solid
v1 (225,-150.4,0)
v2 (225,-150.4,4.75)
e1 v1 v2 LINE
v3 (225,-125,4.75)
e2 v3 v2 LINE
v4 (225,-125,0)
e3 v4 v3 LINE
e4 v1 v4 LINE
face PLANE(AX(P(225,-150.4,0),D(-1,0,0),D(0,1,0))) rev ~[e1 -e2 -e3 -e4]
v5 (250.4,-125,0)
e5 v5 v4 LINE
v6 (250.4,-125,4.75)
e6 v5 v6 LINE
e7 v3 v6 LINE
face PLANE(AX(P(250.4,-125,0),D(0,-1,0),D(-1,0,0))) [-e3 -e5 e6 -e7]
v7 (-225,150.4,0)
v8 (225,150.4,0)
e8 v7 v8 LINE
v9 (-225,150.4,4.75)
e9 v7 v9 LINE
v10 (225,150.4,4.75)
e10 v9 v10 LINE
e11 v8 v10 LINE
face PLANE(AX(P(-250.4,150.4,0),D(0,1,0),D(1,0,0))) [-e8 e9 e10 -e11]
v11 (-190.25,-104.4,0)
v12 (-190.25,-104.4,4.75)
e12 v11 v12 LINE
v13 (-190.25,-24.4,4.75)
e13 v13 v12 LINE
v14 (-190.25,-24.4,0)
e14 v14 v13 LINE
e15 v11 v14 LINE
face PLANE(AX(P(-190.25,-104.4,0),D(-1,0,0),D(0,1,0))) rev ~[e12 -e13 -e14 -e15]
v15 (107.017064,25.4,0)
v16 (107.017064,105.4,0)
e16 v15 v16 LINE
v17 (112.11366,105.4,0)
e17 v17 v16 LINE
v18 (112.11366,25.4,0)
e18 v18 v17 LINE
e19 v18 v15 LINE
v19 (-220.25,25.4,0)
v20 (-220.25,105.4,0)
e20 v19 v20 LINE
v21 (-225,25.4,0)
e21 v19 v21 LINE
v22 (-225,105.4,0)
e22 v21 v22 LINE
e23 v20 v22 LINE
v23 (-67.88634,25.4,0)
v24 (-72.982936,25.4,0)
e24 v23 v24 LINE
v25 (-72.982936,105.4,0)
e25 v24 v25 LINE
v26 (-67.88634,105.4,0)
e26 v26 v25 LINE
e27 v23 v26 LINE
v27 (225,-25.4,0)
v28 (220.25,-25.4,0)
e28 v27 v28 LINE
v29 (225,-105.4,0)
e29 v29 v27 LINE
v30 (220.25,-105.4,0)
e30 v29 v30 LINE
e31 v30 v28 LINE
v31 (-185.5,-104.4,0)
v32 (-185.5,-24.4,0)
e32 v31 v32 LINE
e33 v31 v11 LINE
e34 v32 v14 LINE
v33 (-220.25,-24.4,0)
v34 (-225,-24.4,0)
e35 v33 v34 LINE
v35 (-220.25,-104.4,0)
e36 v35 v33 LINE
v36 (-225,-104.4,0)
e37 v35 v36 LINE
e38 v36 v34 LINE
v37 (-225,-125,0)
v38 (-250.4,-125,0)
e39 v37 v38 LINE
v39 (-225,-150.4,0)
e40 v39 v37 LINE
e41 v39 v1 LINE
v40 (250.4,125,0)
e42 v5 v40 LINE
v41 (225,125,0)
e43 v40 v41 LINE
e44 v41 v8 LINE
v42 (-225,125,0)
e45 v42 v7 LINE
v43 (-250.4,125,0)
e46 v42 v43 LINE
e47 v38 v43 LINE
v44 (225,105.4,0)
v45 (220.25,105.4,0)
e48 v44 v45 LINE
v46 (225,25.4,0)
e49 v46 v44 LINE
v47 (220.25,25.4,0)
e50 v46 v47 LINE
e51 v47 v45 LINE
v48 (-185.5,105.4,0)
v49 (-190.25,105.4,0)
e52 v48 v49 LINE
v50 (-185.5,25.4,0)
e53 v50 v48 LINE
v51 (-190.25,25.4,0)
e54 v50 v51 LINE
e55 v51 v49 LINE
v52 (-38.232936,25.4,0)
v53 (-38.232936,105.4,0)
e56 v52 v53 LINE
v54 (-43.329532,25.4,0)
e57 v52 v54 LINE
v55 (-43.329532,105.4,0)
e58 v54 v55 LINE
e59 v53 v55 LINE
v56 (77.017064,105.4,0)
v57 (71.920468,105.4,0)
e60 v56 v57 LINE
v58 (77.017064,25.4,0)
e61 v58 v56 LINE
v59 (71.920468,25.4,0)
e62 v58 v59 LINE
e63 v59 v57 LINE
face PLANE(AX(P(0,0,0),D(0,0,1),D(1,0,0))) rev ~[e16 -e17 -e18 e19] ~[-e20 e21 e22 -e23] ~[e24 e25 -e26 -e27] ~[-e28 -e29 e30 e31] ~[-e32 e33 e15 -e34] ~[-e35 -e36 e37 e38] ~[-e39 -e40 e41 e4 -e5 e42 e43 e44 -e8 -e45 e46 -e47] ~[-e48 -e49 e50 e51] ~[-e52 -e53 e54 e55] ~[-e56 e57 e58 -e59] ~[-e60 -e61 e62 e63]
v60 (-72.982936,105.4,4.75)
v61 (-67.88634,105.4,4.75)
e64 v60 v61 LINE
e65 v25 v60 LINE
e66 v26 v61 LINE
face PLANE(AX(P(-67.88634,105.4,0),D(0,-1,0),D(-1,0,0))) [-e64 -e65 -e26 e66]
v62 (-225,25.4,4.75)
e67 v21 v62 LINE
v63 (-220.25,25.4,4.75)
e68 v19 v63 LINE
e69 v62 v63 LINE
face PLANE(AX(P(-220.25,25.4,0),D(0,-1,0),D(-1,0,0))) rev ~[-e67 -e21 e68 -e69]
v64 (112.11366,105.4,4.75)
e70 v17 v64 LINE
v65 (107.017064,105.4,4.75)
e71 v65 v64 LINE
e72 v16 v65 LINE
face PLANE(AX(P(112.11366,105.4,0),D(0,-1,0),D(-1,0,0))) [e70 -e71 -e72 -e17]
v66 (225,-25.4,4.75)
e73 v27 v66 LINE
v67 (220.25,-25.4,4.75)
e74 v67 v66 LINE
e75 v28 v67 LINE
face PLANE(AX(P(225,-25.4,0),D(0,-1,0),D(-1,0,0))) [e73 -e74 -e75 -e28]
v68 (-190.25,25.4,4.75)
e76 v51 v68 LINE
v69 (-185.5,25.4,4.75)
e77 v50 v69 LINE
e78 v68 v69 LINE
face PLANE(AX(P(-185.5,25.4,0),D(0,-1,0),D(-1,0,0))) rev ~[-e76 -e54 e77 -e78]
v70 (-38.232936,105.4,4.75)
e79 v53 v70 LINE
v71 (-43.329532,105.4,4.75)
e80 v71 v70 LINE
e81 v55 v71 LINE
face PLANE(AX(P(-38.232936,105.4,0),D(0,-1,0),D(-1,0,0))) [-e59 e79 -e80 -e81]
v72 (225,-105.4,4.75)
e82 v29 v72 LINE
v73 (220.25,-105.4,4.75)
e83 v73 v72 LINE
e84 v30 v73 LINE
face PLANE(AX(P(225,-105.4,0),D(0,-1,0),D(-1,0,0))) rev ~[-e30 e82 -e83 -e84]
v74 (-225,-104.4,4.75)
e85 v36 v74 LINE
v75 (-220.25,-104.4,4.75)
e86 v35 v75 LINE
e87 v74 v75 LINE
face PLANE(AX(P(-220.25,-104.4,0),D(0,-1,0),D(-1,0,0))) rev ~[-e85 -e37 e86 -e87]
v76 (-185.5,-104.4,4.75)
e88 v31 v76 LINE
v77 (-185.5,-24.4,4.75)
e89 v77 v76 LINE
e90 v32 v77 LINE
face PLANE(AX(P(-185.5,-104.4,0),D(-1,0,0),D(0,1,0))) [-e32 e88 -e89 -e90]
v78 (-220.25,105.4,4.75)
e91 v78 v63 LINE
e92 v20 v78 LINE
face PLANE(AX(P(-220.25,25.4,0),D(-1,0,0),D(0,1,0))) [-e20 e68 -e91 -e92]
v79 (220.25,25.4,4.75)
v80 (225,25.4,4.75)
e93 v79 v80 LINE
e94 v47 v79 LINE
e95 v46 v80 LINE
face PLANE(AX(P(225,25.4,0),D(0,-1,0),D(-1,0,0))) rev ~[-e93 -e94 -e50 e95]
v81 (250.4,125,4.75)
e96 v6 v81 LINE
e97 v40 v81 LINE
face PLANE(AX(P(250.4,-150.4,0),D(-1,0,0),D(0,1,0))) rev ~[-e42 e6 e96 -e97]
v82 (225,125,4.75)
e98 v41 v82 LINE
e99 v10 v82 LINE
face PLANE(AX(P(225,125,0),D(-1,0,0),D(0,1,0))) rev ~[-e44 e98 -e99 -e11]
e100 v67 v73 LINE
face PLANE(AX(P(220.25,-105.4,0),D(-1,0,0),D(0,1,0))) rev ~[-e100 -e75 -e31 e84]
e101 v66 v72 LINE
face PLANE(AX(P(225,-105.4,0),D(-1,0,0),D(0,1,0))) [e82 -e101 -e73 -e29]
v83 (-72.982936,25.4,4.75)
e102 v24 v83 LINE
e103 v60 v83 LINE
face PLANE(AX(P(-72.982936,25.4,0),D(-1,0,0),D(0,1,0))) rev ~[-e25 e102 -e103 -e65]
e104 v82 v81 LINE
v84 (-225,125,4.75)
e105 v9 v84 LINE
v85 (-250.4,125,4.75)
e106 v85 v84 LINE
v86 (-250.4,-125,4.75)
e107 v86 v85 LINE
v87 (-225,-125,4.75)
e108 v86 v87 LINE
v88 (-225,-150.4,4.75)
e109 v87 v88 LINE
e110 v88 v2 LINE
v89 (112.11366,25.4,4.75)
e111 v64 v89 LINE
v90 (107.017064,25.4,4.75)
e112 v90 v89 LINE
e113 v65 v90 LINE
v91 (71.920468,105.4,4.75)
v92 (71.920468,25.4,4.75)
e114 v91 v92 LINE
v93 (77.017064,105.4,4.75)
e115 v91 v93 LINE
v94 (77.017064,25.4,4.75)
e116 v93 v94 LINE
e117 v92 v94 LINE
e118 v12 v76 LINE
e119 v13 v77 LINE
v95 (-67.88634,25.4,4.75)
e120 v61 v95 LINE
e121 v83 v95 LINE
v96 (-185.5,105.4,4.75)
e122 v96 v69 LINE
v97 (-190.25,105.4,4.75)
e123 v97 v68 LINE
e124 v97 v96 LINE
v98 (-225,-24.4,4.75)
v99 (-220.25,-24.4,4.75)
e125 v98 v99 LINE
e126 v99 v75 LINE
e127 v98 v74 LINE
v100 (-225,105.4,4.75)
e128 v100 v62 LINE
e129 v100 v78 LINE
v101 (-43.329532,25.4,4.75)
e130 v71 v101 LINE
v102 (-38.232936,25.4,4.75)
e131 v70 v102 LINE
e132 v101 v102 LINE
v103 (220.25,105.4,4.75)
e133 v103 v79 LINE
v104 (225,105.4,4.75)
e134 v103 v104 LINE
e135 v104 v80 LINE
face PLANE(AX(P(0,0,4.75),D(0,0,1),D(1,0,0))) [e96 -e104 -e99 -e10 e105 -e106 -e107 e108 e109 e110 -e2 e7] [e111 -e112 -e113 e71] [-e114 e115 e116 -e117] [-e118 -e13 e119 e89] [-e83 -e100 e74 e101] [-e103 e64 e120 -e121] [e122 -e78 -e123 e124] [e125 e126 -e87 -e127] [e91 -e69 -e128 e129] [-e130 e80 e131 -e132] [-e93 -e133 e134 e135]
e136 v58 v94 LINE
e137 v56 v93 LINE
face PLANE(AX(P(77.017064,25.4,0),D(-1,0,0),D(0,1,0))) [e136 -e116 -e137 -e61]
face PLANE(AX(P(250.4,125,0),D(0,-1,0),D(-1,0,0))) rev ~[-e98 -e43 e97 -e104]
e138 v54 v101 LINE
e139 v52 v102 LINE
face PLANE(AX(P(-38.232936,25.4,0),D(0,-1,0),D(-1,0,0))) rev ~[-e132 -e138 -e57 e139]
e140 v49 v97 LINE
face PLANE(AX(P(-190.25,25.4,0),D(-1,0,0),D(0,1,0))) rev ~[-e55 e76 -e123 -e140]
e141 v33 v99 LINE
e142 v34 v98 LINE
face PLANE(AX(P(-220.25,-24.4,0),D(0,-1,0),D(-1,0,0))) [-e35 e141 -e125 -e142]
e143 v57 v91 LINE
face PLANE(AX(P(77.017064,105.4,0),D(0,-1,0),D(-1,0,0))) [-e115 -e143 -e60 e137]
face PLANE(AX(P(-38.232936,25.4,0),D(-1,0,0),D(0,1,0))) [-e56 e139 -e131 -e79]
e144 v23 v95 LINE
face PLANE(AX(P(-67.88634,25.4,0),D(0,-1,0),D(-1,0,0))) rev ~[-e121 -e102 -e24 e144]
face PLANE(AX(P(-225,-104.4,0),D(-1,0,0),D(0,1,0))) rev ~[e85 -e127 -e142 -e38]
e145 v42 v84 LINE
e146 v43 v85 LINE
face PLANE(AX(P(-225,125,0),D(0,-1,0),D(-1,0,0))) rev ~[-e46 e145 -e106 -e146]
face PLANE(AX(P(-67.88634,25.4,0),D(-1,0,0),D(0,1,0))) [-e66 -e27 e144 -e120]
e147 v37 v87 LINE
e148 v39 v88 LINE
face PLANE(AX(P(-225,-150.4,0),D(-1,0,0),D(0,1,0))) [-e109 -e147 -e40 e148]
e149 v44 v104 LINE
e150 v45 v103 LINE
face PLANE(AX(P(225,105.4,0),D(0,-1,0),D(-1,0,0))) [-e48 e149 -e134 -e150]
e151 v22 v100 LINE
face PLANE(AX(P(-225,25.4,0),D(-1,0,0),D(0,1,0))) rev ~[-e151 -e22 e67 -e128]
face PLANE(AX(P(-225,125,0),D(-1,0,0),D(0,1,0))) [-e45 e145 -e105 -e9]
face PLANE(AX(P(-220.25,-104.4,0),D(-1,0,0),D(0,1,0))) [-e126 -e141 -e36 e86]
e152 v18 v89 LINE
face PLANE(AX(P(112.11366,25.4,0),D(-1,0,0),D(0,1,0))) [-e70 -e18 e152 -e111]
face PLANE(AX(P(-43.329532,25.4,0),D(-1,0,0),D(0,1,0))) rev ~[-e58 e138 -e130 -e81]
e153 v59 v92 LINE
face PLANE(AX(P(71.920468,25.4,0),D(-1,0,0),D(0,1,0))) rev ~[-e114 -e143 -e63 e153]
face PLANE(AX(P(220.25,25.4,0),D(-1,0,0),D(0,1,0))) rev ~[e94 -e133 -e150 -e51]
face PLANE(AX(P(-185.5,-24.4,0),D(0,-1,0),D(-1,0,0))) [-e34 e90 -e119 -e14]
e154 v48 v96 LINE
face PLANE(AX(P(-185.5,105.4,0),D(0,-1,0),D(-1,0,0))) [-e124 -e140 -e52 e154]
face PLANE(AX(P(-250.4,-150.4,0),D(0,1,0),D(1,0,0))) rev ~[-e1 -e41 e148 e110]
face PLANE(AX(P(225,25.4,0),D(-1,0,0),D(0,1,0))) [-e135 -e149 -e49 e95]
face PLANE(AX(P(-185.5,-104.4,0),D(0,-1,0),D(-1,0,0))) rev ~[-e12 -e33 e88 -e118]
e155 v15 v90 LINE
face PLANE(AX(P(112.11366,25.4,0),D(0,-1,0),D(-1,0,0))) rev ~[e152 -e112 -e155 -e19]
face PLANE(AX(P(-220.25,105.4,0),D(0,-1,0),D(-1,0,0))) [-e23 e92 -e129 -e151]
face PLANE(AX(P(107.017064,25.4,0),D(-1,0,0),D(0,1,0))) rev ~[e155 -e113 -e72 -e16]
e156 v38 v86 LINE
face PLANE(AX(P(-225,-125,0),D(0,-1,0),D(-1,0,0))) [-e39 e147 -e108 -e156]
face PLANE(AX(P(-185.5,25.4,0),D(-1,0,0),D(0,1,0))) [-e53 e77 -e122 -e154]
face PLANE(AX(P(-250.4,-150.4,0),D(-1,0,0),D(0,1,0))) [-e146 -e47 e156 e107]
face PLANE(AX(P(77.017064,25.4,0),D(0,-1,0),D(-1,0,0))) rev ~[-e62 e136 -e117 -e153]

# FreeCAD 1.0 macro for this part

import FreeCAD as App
import Part
import Sketcher


def add_polygon(sketch, points):
    """Adds a closed chain of lines whose ends are joined by coincident constraints."""
    first, n = sketch.GeometryCount, len(points)
    for a, b in zip(points, points[1:] + points[:1]):
        sketch.addGeometry(Part.LineSegment(App.Vector(*a, 0), App.Vector(*b, 0)), False)
    for i in range(n):
        sketch.addConstraint(Sketcher.Constraint("Coincident", first + i, 2, first + (i + 1) % n, 1))

doc = App.newDocument("Part")
body = doc.addObject("PartDesign::Body", "Body")

# Sketch on XY plane
sketch1 = doc.addObject("Sketcher::SketchObject", "Sketch")
body.addObject(sketch1)
sketch1.AttachmentSupport = (doc.XY_Plane, [""])
sketch1.MapMode = "FlatFace"
add_polygon(sketch1, [(-250.4, 150.4), (-250.4, -150.4), (250.4, -150.4), (250.4, 150.4)])  # lines 0-3
sketch1.addConstraint([
    Sketcher.Constraint("Vertical", 0),
    Sketcher.Constraint("Horizontal", 1),
    Sketcher.Constraint("Vertical", 2),
    Sketcher.Constraint("Horizontal", 3),
    Sketcher.Constraint("Symmetric", 0, 2, 2, 2, -1, 1),
    Sketcher.Constraint("DistanceX", 1, 1, 1, 2, 500.8),
    Sketcher.Constraint("DistanceY", 0, 2, 0, 1, 300.8),
])
pad1 = doc.addObject("PartDesign::Pad", "Pad")
body.addObject(pad1)
pad1.Profile = sketch1
pad1.Length = 4.75

# Sketch on XY plane
sketch2 = doc.addObject("Sketcher::SketchObject", "Sketch001")
body.addObject(sketch2)
sketch2.AttachmentSupport = (doc.XY_Plane, [""])
sketch2.MapMode = "FlatFace"
add_polygon(sketch2, [(250.4, 150.4), (250.4, 125), (225, 125), (225, 150.4)])  # lines 0-3
add_polygon(sketch2, [(250.4, -125), (250.4, -150.4), (225, -150.4), (225, -125)])  # lines 4-7
add_polygon(sketch2, [(-225, 150.4), (-225, 125), (-250.4, 125), (-250.4, 150.4)])  # lines 8-11
add_polygon(sketch2, [(-225, -125), (-225, -150.4), (-250.4, -150.4), (-250.4, -125)])  # lines 12-15
add_polygon(sketch2, [(225, 105.4), (225, 25.4), (220.25, 25.4), (220.25, 105.4)])  # lines 16-19
add_polygon(sketch2, [(225, -25.4), (225, -105.4), (220.25, -105.4), (220.25, -25.4)])  # lines 20-23
add_polygon(sketch2, [(-220.25, 105.4), (-220.25, 25.4), (-225, 25.4), (-225, 105.4)])  # lines 24-27
add_polygon(sketch2, [(-220.25, -24.4), (-220.25, -104.4), (-225, -104.4), (-225, -24.4)])  # lines 28-31
add_polygon(sketch2, [(-185.5, 105.4), (-185.5, 25.4), (-190.25, 25.4), (-190.25, 105.4)])  # lines 32-35
add_polygon(sketch2, [(-185.5, -24.4), (-185.5, -104.4), (-190.25, -104.4), (-190.25, -24.4)])  # lines 36-39
add_polygon(sketch2, [(112.11366, 105.4), (112.11366, 25.4), (107.017064, 25.4), (107.017064, 105.4)])  # lines 40-43
add_polygon(sketch2, [(77.017064, 105.4), (77.017064, 25.4), (71.920468, 25.4), (71.920468, 105.4)])  # lines 44-47
add_polygon(sketch2, [(-38.232936, 105.4), (-38.232936, 25.4), (-43.329532, 25.4), (-43.329532, 105.4)])  # lines 48-51
add_polygon(sketch2, [(-67.88634, 105.4), (-67.88634, 25.4), (-72.982936, 25.4), (-72.982936, 105.4)])  # lines 52-55
sketch2.addConstraint([
    Sketcher.Constraint("Vertical", 0),
    Sketcher.Constraint("Horizontal", 1),
    Sketcher.Constraint("Vertical", 2),
    Sketcher.Constraint("Horizontal", 3),
    Sketcher.Constraint("Vertical", 4),
    Sketcher.Constraint("Horizontal", 5),
    Sketcher.Constraint("Vertical", 6),
    Sketcher.Constraint("Horizontal", 7),
    Sketcher.Constraint("Vertical", 8),
    Sketcher.Constraint("Horizontal", 9),
    Sketcher.Constraint("Vertical", 10),
    Sketcher.Constraint("Horizontal", 11),
    Sketcher.Constraint("Vertical", 12),
    Sketcher.Constraint("Horizontal", 13),
    Sketcher.Constraint("Vertical", 14),
    Sketcher.Constraint("Horizontal", 15),
    Sketcher.Constraint("Vertical", 16),
    Sketcher.Constraint("Horizontal", 17),
    Sketcher.Constraint("Vertical", 18),
    Sketcher.Constraint("Horizontal", 19),
    Sketcher.Constraint("Vertical", 20),
    Sketcher.Constraint("Horizontal", 21),
    Sketcher.Constraint("Vertical", 22),
    Sketcher.Constraint("Horizontal", 23),
    Sketcher.Constraint("Vertical", 24),
    Sketcher.Constraint("Horizontal", 25),
    Sketcher.Constraint("Vertical", 26),
    Sketcher.Constraint("Horizontal", 27),
    Sketcher.Constraint("Vertical", 28),
    Sketcher.Constraint("Horizontal", 29),
    Sketcher.Constraint("Vertical", 30),
    Sketcher.Constraint("Horizontal", 31),
    Sketcher.Constraint("Vertical", 32),
    Sketcher.Constraint("Horizontal", 33),
    Sketcher.Constraint("Vertical", 34),
    Sketcher.Constraint("Horizontal", 35),
    Sketcher.Constraint("Vertical", 36),
    Sketcher.Constraint("Horizontal", 37),
    Sketcher.Constraint("Vertical", 38),
    Sketcher.Constraint("Horizontal", 39),
    Sketcher.Constraint("Vertical", 40),
    Sketcher.Constraint("Horizontal", 41),
    Sketcher.Constraint("Vertical", 42),
    Sketcher.Constraint("Horizontal", 43),
    Sketcher.Constraint("Vertical", 44),
    Sketcher.Constraint("Horizontal", 45),
    Sketcher.Constraint("Vertical", 46),
    Sketcher.Constraint("Horizontal", 47),
    Sketcher.Constraint("Vertical", 48),
    Sketcher.Constraint("Horizontal", 49),
    Sketcher.Constraint("Vertical", 50),
    Sketcher.Constraint("Horizontal", 51),
    Sketcher.Constraint("Vertical", 52),
    Sketcher.Constraint("Horizontal", 53),
    Sketcher.Constraint("Vertical", 54),
    Sketcher.Constraint("Horizontal", 55),
    Sketcher.Constraint("Symmetric", 6, 2, 8, 2, -1, 1),
    Sketcher.Constraint("Symmetric", 4, 2, 10, 2, -1, 1),
    Sketcher.Constraint("Symmetric", 2, 2, 12, 2, -1, 1),
    Sketcher.Constraint("Symmetric", 0, 2, 14, 2, -1, 1),
    Sketcher.Constraint("Symmetric", 22, 2, 24, 2, -1, 1),
    Sketcher.Constraint("Symmetric", 20, 2, 26, 2, -1, 1),
    Sketcher.Constraint("Symmetric", 1, 2, 8, 2, -2),
    Sketcher.Constraint("Symmetric", 3, 2, 10, 2, -2),
    Sketcher.Constraint("Symmetric", 17, 2, 24, 2, -2),
    Sketcher.Constraint("Symmetric", 19, 2, 26, 2, -2),
    Sketcher.Constraint("Horizontal", 25, 2, 32, 2),
    Sketcher.Constraint("Horizontal", 27, 2, 34, 2),
    Sketcher.Constraint("Horizontal", 29, 2, 36, 2),
    Sketcher.Constraint("Horizontal", 31, 2, 38, 2),
    Sketcher.Constraint("Horizontal", 33, 2, 40, 2),
    Sketcher.Constraint("Horizontal", 35, 2, 42, 2),
    Sketcher.Constraint("Horizontal", 41, 2, 44, 2),
    Sketcher.Constraint("Horizontal", 43, 2, 46, 2),
    Sketcher.Constraint("Horizontal", 45, 2, 48, 2),
    Sketcher.Constraint("Horizontal", 47, 2, 50, 2),
    Sketcher.Constraint("Horizontal", 49, 2, 52, 2),
    Sketcher.Constraint("Horizontal", 51, 2, 54, 2),
    Sketcher.Constraint("Vertical", 6, 2, 16, 2),
    Sketcher.Constraint("Vertical", 27, 2, 28, 2),
    Sketcher.Constraint("Vertical", 26, 2, 29, 2),
    Sketcher.Constraint("Vertical", 35, 2, 36, 2),
    Sketcher.Constraint("Vertical", 34, 2, 37, 2),
    Sketcher.Constraint("Equal", 31, 33),
    Sketcher.Constraint("Equal", 43, 45),
    Sketcher.Constraint("Equal", 47, 49),
    Sketcher.Constraint("Equal", 51, 53),
    Sketcher.Constraint("Equal", 15, 0),
    Sketcher.Constraint("Equal", 26, 28),
    Sketcher.Constraint("DistanceY", 16, 2, 16, 1, 80.0),
    Sketcher.Constraint("DistanceX", 1, 2, 1, 1, 25.4),
    Sketcher.Constraint("DistanceY", -1, 1, 0, 2, 125.0),
    Sketcher.Constraint("DistanceX", -1, 1, 1, 2, 225.0),
    Sketcher.Constraint("DistanceY", 16, 2, 2, 2, 125.0),
    Sketcher.Constraint("DistanceY", 12, 2, 28, 2, 46.0),
    Sketcher.Constraint("DistanceX", 24, 2, 33, 2, 30.0),
    Sketcher.Constraint("DistanceX", 44, 2, 41, 2, 30.0),
    Sketcher.Constraint("DistanceX", 17, 2, 17, 1, 4.75),
    Sketcher.Constraint("DistanceX", 48, 2, 44, 2, 115.25),
    Sketcher.Constraint("DistanceX", 53, 2, 48, 2, 34.75),
    Sketcher.Constraint("DistanceX", 41, 2, 41, 1, 5.096596),
    Sketcher.Constraint("DistanceX", -1, 1, 40, 2, 112.11366),
])
pocket1 = doc.addObject("PartDesign::Pocket", "Pocket")
body.addObject(pocket1)
pocket1.Profile = sketch2
pocket1.Length = 10
pocket1.Reversed = True

doc.recompute()
